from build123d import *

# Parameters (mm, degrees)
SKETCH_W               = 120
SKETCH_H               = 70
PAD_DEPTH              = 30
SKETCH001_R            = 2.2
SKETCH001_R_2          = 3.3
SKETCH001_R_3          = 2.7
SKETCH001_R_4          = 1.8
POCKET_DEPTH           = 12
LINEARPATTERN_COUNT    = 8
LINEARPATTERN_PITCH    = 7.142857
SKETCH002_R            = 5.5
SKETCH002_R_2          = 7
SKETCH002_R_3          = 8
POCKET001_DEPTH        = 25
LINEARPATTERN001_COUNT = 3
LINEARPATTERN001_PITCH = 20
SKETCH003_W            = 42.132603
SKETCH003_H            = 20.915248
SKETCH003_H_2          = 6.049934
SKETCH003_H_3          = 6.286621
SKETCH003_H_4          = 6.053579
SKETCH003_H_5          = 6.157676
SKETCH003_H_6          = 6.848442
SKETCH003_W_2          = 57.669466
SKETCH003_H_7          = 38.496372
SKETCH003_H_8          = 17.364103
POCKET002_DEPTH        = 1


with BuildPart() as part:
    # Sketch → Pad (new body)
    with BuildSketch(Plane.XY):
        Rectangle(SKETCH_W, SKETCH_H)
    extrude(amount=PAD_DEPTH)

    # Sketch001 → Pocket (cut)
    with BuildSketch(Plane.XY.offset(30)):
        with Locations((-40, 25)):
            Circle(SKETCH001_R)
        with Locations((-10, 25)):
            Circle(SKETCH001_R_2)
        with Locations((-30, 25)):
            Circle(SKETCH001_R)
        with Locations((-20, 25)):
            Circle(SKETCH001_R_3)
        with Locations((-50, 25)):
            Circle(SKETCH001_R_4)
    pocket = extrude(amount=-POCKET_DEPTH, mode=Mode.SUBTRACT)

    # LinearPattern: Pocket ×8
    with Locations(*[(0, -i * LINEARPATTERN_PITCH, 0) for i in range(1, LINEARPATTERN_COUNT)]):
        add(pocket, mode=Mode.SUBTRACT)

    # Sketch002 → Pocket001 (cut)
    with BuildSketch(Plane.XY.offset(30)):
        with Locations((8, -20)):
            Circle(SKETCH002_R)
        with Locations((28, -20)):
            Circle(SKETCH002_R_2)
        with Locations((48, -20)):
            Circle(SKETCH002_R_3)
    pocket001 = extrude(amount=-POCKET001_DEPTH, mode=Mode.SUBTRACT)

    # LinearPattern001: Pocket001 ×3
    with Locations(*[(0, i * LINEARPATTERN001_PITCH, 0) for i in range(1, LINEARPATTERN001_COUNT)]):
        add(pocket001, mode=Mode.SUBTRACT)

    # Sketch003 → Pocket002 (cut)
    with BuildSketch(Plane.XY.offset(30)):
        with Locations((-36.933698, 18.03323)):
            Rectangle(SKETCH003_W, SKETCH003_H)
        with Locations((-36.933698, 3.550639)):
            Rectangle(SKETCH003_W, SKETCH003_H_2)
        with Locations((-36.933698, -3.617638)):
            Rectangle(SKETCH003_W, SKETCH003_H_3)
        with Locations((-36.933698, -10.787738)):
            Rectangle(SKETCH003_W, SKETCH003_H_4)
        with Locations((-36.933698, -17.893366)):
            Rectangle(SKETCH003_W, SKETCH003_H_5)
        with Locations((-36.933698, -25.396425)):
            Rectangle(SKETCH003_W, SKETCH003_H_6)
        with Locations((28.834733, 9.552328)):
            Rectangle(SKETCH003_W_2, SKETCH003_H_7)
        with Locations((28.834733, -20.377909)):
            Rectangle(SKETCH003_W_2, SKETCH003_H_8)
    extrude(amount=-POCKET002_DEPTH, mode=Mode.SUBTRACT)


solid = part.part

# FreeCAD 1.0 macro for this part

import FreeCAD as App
import Part
import Sketcher

V = App.Vector


def add_polygon(sketch, points):
    """Adds a closed chain of lines whose ends are joined by coincident constraints."""
    first, n = sketch.GeometryCount, len(points)
    for a, b in zip(points, points[1:] + points[:1]):
        sketch.addGeometry(Part.LineSegment(App.Vector(*a, 0), App.Vector(*b, 0)), False)
    for i in range(n):
        sketch.addConstraint(Sketcher.Constraint("Coincident", first + i, 2, first + (i + 1) % n, 1))

doc = App.newDocument("Part")
body = doc.addObject("PartDesign::Body", "Body")

# Sketch on XY plane
sketch1 = body.newObject("Sketcher::SketchObject", "Sketch")
sketch1.AttachmentSupport = (doc.getObject("XY_Plane"), [""])
sketch1.MapMode = "FlatFace"
add_polygon(sketch1, [(-60, 35), (-60, -35), (60, -35), (60, 35)])  # lines 0-3
sketch1.addConstraint(Sketcher.Constraint("Vertical", 0))
sketch1.addConstraint(Sketcher.Constraint("Horizontal", 1))
sketch1.addConstraint(Sketcher.Constraint("Vertical", 2))
sketch1.addConstraint(Sketcher.Constraint("Horizontal", 3))
sketch1.addConstraint(Sketcher.Constraint("Symmetric", 0, 2, 2, 2, -1, 1))
sketch1.addConstraint(Sketcher.Constraint("DistanceX", 1, 1, 1, 2, 120.0))
sketch1.addConstraint(Sketcher.Constraint("DistanceY", 0, 2, 0, 1, 70.0))
pad1 = body.newObject("PartDesign::Pad", "Pad")
pad1.Profile = sketch1
pad1.Length = 30

# Sketch on XY plane
sketch2 = body.newObject("Sketcher::SketchObject", "Sketch001")
sketch2.AttachmentSupport = (doc.getObject("XY_Plane"), [""])
sketch2.MapMode = "FlatFace"
sketch2.AttachmentOffset = App.Placement(V(0, 0, 30), App.Rotation())
sketch2.addGeometry(Part.Circle(V(-40, 25, 0), V(0, 0, 1), 2.2), False)
sketch2.addGeometry(Part.Circle(V(-10, 25, 0), V(0, 0, 1), 3.3), False)
sketch2.addGeometry(Part.Circle(V(-30, 25, 0), V(0, 0, 1), 2.2), False)
sketch2.addGeometry(Part.Circle(V(-20, 25, 0), V(0, 0, 1), 2.7), False)
sketch2.addGeometry(Part.Circle(V(-50, 25, 0), V(0, 0, 1), 1.8), False)
sketch2.addConstraint(Sketcher.Constraint("Equal", 0, 2))
sketch2.addConstraint(Sketcher.Constraint("Horizontal", 0, 3, 1, 3))
sketch2.addConstraint(Sketcher.Constraint("Horizontal", 1, 3, 2, 3))
sketch2.addConstraint(Sketcher.Constraint("Horizontal", 2, 3, 3, 3))
sketch2.addConstraint(Sketcher.Constraint("Horizontal", 3, 3, 4, 3))
sketch2.addConstraint(Sketcher.Constraint("Diameter", 0, 4.4))
sketch2.addConstraint(Sketcher.Constraint("Diameter", 1, 6.6))
sketch2.addConstraint(Sketcher.Constraint("Diameter", 3, 5.4))
sketch2.addConstraint(Sketcher.Constraint("Diameter", 4, 3.6))
sketch2.addConstraint(Sketcher.Constraint("DistanceX", 0, 3, -1, 1, 40.0))
sketch2.addConstraint(Sketcher.Constraint("DistanceY", -1, 1, 0, 3, 25.0))
sketch2.addConstraint(Sketcher.Constraint("DistanceX", 1, 3, -1, 1, 10.0))
sketch2.addConstraint(Sketcher.Constraint("DistanceX", 2, 3, -1, 1, 30.0))
sketch2.addConstraint(Sketcher.Constraint("DistanceX", 3, 3, -1, 1, 20.0))
sketch2.addConstraint(Sketcher.Constraint("DistanceX", 4, 3, -1, 1, 50.0))
pocket1 = body.newObject("PartDesign::Pocket", "Pocket")
pocket1.Profile = sketch2
pocket1.Length = 12
doc.recompute()

linearpattern = body.newObject("PartDesign::LinearPattern", "LinearPattern")
linearpattern.Originals = [pocket1]
linearpattern.Direction = (doc.getObject("Y_Axis"), [""])
linearpattern.Mode = "offset"
linearpattern.Offset = 7.142857
linearpattern.Occurrences = 8
linearpattern.Reversed = True
body.Tip = linearpattern

# Sketch on XY plane
sketch3 = body.newObject("Sketcher::SketchObject", "Sketch002")
sketch3.AttachmentSupport = (doc.getObject("XY_Plane"), [""])
sketch3.MapMode = "FlatFace"
sketch3.AttachmentOffset = App.Placement(V(0, 0, 30), App.Rotation())
sketch3.addGeometry(Part.Circle(V(8, -20, 0), V(0, 0, 1), 5.5), False)
sketch3.addGeometry(Part.Circle(V(28, -20, 0), V(0, 0, 1), 7), False)
sketch3.addGeometry(Part.Circle(V(48, -20, 0), V(0, 0, 1), 8), False)
sketch3.addConstraint(Sketcher.Constraint("Horizontal", 0, 3, 1, 3))
sketch3.addConstraint(Sketcher.Constraint("Horizontal", 1, 3, 2, 3))
sketch3.addConstraint(Sketcher.Constraint("Diameter", 0, 11.0))
sketch3.addConstraint(Sketcher.Constraint("Diameter", 1, 14.0))
sketch3.addConstraint(Sketcher.Constraint("Diameter", 2, 16.0))
sketch3.addConstraint(Sketcher.Constraint("DistanceX", -1, 1, 0, 3, 8.0))
sketch3.addConstraint(Sketcher.Constraint("DistanceY", 0, 3, -1, 1, 20.0))
sketch3.addConstraint(Sketcher.Constraint("DistanceX", -1, 1, 1, 3, 28.0))
sketch3.addConstraint(Sketcher.Constraint("DistanceX", -1, 1, 2, 3, 48.0))
pocket2 = body.newObject("PartDesign::Pocket", "Pocket001")
pocket2.Profile = sketch3
pocket2.Length = 25
doc.recompute()

linearpattern2 = body.newObject("PartDesign::LinearPattern", "LinearPattern001")
linearpattern2.Originals = [pocket2]
linearpattern2.Direction = (doc.getObject("Y_Axis"), [""])
linearpattern2.Mode = "offset"
linearpattern2.Offset = 20
linearpattern2.Occurrences = 3
body.Tip = linearpattern2

# Sketch on XY plane
sketch4 = body.newObject("Sketcher::SketchObject", "Sketch003")
sketch4.AttachmentSupport = (doc.getObject("XY_Plane"), [""])
sketch4.MapMode = "FlatFace"
sketch4.AttachmentOffset = App.Placement(V(0, 0, 30), App.Rotation())
add_polygon(sketch4, [(-58, 28.490854), (-58, 7.575606), (-15.867396, 7.575606), (-15.867396, 28.490854)])  # lines 0-3
add_polygon(sketch4, [(-58, 6.575606), (-58, 0.525672), (-15.867396, 0.525672), (-15.867396, 6.575606)])  # lines 4-7
add_polygon(sketch4, [(-58, -0.474328), (-58, -6.760948), (-15.867396, -6.760948), (-15.867396, -0.474328)])  # lines 8-11
add_polygon(sketch4, [(-58, -7.760948), (-58, -13.814528), (-15.867396, -13.814528), (-15.867396, -7.760948)])  # lines 12-15
add_polygon(sketch4, [(-58, -14.814528), (-58, -20.972204), (-15.867396, -20.972204), (-15.867396, -14.814528)])  # lines 16-19
add_polygon(sketch4, [(-58, -21.972204), (-58, -28.820646), (-15.867396, -28.820646), (-15.867396, -21.972204)])  # lines 20-23
add_polygon(sketch4, [(0, 28.800514), (0, -9.695858), (57.669466, -9.695858), (57.669466, 28.800514)])  # lines 24-27
add_polygon(sketch4, [(0, -11.695858), (0, -29.05996), (57.669466, -29.05996), (57.669466, -11.695858)])  # lines 28-31
sketch4.addConstraint(Sketcher.Constraint("Vertical", 0))
sketch4.addConstraint(Sketcher.Constraint("Horizontal", 1))
sketch4.addConstraint(Sketcher.Constraint("Vertical", 2))
sketch4.addConstraint(Sketcher.Constraint("Horizontal", 3))
sketch4.addConstraint(Sketcher.Constraint("Vertical", 4))
sketch4.addConstraint(Sketcher.Constraint("Horizontal", 5))
sketch4.addConstraint(Sketcher.Constraint("Vertical", 6))
sketch4.addConstraint(Sketcher.Constraint("Horizontal", 7))
sketch4.addConstraint(Sketcher.Constraint("Vertical", 8))
sketch4.addConstraint(Sketcher.Constraint("Horizontal", 9))
sketch4.addConstraint(Sketcher.Constraint("Vertical", 10))
sketch4.addConstraint(Sketcher.Constraint("Horizontal", 11))
sketch4.addConstraint(Sketcher.Constraint("Vertical", 12))
sketch4.addConstraint(Sketcher.Constraint("Horizontal", 13))
sketch4.addConstraint(Sketcher.Constraint("Vertical", 14))
sketch4.addConstraint(Sketcher.Constraint("Horizontal", 15))
sketch4.addConstraint(Sketcher.Constraint("Vertical", 16))
sketch4.addConstraint(Sketcher.Constraint("Horizontal", 17))
sketch4.addConstraint(Sketcher.Constraint("Vertical", 18))
sketch4.addConstraint(Sketcher.Constraint("Horizontal", 19))
sketch4.addConstraint(Sketcher.Constraint("Vertical", 20))
sketch4.addConstraint(Sketcher.Constraint("Horizontal", 21))
sketch4.addConstraint(Sketcher.Constraint("Vertical", 22))
sketch4.addConstraint(Sketcher.Constraint("Horizontal", 23))
sketch4.addConstraint(Sketcher.Constraint("Vertical", 24))
sketch4.addConstraint(Sketcher.Constraint("Horizontal", 25))
sketch4.addConstraint(Sketcher.Constraint("Vertical", 26))
sketch4.addConstraint(Sketcher.Constraint("Horizontal", 27))
sketch4.addConstraint(Sketcher.Constraint("Vertical", 28))
sketch4.addConstraint(Sketcher.Constraint("Horizontal", 29))
sketch4.addConstraint(Sketcher.Constraint("Vertical", 30))
sketch4.addConstraint(Sketcher.Constraint("Horizontal", 31))
sketch4.addConstraint(Sketcher.Constraint("PointOnObject", 24, 2, -2))
sketch4.addConstraint(Sketcher.Constraint("PointOnObject", 28, 2, -2))
sketch4.addConstraint(Sketcher.Constraint("Vertical", 3, 2, 4, 2))
sketch4.addConstraint(Sketcher.Constraint("Vertical", 2, 2, 5, 2))
sketch4.addConstraint(Sketcher.Constraint("Vertical", 7, 2, 8, 2))
sketch4.addConstraint(Sketcher.Constraint("Vertical", 6, 2, 9, 2))
sketch4.addConstraint(Sketcher.Constraint("Vertical", 11, 2, 12, 2))
sketch4.addConstraint(Sketcher.Constraint("Vertical", 10, 2, 13, 2))
sketch4.addConstraint(Sketcher.Constraint("Vertical", 15, 2, 16, 2))
sketch4.addConstraint(Sketcher.Constraint("Vertical", 14, 2, 17, 2))
sketch4.addConstraint(Sketcher.Constraint("Vertical", 19, 2, 20, 2))
sketch4.addConstraint(Sketcher.Constraint("Vertical", 18, 2, 21, 2))
sketch4.addConstraint(Sketcher.Constraint("Vertical", 26, 2, 29, 2))
sketch4.addConstraint(Sketcher.Constraint("DistanceX", 0, 2, -1, 1, 58.0))
sketch4.addConstraint(Sketcher.Constraint("DistanceY", 6, 2, 1, 2, 1.0))
sketch4.addConstraint(Sketcher.Constraint("DistanceY", 10, 2, 5, 2, 1.0))
sketch4.addConstraint(Sketcher.Constraint("DistanceY", 14, 2, 9, 2, 1.0))
sketch4.addConstraint(Sketcher.Constraint("DistanceY", 18, 2, 13, 2, 1.0))
sketch4.addConstraint(Sketcher.Constraint("DistanceY", 22, 2, 17, 2, 1.0))
sketch4.addConstraint(Sketcher.Constraint("DistanceY", 30, 2, 25, 2, 2.0))
sketch4.addConstraint(Sketcher.Constraint("DistanceY", 8, 2, 8, 1, 6.286621))
sketch4.addConstraint(Sketcher.Constraint("DistanceY", 12, 2, 12, 1, 6.053579))
sketch4.addConstraint(Sketcher.Constraint("DistanceY", 20, 2, 20, 1, 6.848442))
sketch4.addConstraint(Sketcher.Constraint("DistanceX", 1, 1, 1, 2, 42.132603))
sketch4.addConstraint(Sketcher.Constraint("DistanceX", 25, 1, 25, 2, 57.669466))
sketch4.addConstraint(Sketcher.Constraint("DistanceY", 0, 2, 0, 1, 20.915248))
sketch4.addConstraint(Sketcher.Constraint("DistanceY", 4, 2, 4, 1, 6.049934))
sketch4.addConstraint(Sketcher.Constraint("DistanceY", 16, 2, 16, 1, 6.157676))
sketch4.addConstraint(Sketcher.Constraint("DistanceY", 24, 2, 24, 1, 38.496372))
sketch4.addConstraint(Sketcher.Constraint("DistanceY", 28, 2, 28, 1, 17.364103))
sketch4.addConstraint(Sketcher.Constraint("DistanceY", 8, 2, -1, 1, 6.760948))
sketch4.addConstraint(Sketcher.Constraint("DistanceY", 28, 2, -1, 1, 29.05996))
pocket3 = body.newObject("PartDesign::Pocket", "Pocket002")
pocket3.Profile = sketch4
pocket3.Length = 1

doc.recompute()
